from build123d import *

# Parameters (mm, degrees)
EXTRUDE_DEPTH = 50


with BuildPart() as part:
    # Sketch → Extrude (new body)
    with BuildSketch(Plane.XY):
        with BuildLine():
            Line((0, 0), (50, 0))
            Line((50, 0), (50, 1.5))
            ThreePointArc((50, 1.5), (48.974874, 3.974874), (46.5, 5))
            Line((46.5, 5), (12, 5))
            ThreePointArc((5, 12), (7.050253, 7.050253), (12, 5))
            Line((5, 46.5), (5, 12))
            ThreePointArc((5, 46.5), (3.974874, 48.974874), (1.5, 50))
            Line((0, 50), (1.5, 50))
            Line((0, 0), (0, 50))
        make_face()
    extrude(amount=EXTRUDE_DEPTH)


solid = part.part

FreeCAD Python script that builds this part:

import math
import FreeCAD as App
import Part
import Sketcher

doc = App.newDocument("Part")
params = doc.addObject("Spreadsheet::Sheet", "Params")
for row, (alias, value) in enumerate([
    ("sketch1_radius", "7.000002 mm"),
    ("sketch1_radius2", "3.499999 mm"),
    ("sketch1_width", "50 mm"),
    ("sketch1_width2", "34.5 mm"),
    ("pad1_length", "50 mm"),
], start=1):
    params.set(f"A{row}", alias)
    params.set(f"B{row}", "=" + value)
    params.setAlias(f"B{row}", alias)

body = doc.addObject("PartDesign::Body", "Body")

# Sketch on XY plane
sketch1 = body.newObject("Sketcher::SketchObject", "Sketch")
sketch1.AttachmentSupport = (doc.getObject("XY_Plane"), [""])
sketch1.MapMode = "FlatFace"
sketch1.addGeometry(Part.LineSegment(App.Vector(0, 0, 0), App.Vector(50, 0, 0)), False)
sketch1.addGeometry(Part.LineSegment(App.Vector(50, 0, 0), App.Vector(50, 1.5, 0)), False)
sketch1.addGeometry(Part.ArcOfCircle(Part.Circle(App.Vector(46.5, 1.5, 0), App.Vector(0, 0, 1), 3.5), math.radians(0), math.radians(90)), False)
sketch1.addGeometry(Part.LineSegment(App.Vector(46.5, 5, 0), App.Vector(12, 5, 0)), False)
sketch1.addGeometry(Part.ArcOfCircle(Part.Circle(App.Vector(12, 12, 0), App.Vector(0, 0, 1), 7), math.radians(-180), math.radians(-90)), False)
sketch1.addGeometry(Part.LineSegment(App.Vector(5, 12, 0), App.Vector(5, 46.5, 0)), False)
sketch1.addGeometry(Part.ArcOfCircle(Part.Circle(App.Vector(1.5, 46.5, 0), App.Vector(0, 0, 1), 3.5), math.radians(0), math.radians(90)), False)
sketch1.addGeometry(Part.LineSegment(App.Vector(1.5, 50, 0), App.Vector(0, 50, 0)), False)
sketch1.addGeometry(Part.LineSegment(App.Vector(0, 50, 0), App.Vector(0, 0, 0)), False)
sketch1.addConstraint(Sketcher.Constraint("Coincident", 0, 2, 1, 1))
sketch1.addConstraint(Sketcher.Constraint("Tangent", 1, 2, 2, 1))
sketch1.addConstraint(Sketcher.Constraint("Tangent", 2, 2, 3, 1))
sketch1.addConstraint(Sketcher.Constraint("Tangent", 3, 2, 4, 2))
sketch1.addConstraint(Sketcher.Constraint("Tangent", 4, 1, 5, 1))
sketch1.addConstraint(Sketcher.Constraint("Tangent", 5, 2, 6, 1))
sketch1.addConstraint(Sketcher.Constraint("Tangent", 6, 2, 7, 1))
sketch1.addConstraint(Sketcher.Constraint("Coincident", 7, 2, 8, 1))
sketch1.addConstraint(Sketcher.Constraint("Coincident", 8, 2, 0, 1))
sketch1.addConstraint(Sketcher.Constraint("Horizontal", 0))
sketch1.addConstraint(Sketcher.Constraint("Vertical", 1))
sketch1.addConstraint(Sketcher.Constraint("Horizontal", 3))
sketch1.addConstraint(Sketcher.Constraint("Vertical", 5))
sketch1.addConstraint(Sketcher.Constraint("Horizontal", 7))
sketch1.addConstraint(Sketcher.Constraint("Vertical", 8))
sketch1.addConstraint(Sketcher.Constraint("Coincident", 8, 2, -1, 1))
sketch1.addConstraint(Sketcher.Constraint("Equal", 2, 6))
sketch1.addConstraint(Sketcher.Constraint("Equal", 7, 1))
sketch1.addConstraint(Sketcher.Constraint("Equal", 3, 5))
sketch1.addConstraint(Sketcher.Constraint("Radius", 4, 7.000002))
sketch1.addConstraint(Sketcher.Constraint("Radius", 2, 3.499999))
sketch1.addConstraint(Sketcher.Constraint("DistanceX", 0, 1, 0, 2, 50.0))
sketch1.addConstraint(Sketcher.Constraint("DistanceX", 3, 2, 3, 1, 34.5))
sketch1.setExpression("Constraints[19]", "Params.sketch1_radius")
sketch1.setExpression("Constraints[20]", "Params.sketch1_radius2")
sketch1.setExpression("Constraints[21]", "Params.sketch1_width")
sketch1.setExpression("Constraints[22]", "Params.sketch1_width2")
pad1 = body.newObject("PartDesign::Pad", "Pad")
pad1.Profile = sketch1
pad1.setExpression("Length", "Params.pad1_length")

doc.recompute()
